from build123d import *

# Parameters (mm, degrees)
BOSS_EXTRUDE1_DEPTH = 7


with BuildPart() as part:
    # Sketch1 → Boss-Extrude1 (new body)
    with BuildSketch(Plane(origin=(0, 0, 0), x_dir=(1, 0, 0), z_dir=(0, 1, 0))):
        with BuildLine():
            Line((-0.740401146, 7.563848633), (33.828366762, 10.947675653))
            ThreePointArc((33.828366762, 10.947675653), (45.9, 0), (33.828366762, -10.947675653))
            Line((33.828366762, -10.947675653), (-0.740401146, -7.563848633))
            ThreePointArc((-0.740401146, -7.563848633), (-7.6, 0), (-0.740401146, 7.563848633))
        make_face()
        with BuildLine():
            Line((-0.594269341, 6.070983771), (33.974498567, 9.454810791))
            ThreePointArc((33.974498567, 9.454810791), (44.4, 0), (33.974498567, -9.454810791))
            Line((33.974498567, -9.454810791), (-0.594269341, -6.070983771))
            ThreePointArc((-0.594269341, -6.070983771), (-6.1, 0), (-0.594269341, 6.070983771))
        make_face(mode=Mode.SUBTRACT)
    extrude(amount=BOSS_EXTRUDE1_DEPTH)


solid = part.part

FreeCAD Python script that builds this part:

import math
import FreeCAD as App
import Part
import Sketcher
Q = App.Units.Quantity

doc = App.newDocument("Part")
body = doc.addObject("PartDesign::Body", "Body")

# Sketch on XZ plane
sketch1 = doc.addObject("Sketcher::SketchObject", "Sketch")
body.addObject(sketch1)
sketch1.AttachmentSupport = (doc.XZ_Plane, [""])
sketch1.MapMode = "FlatFace"
sketch1.addGeometry([
    Part.LineSegment(App.Vector(33.828367, -10.947676, 0), App.Vector(-0.740401, -7.563849, 0)),  # 0
    Part.ArcOfCircle(Part.Circle(App.Vector(0, 0, 0), App.Vector(0, 0, 1), 7.6), math.radians(95.590691), math.radians(264.409309)),  # 1
    Part.LineSegment(App.Vector(-0.740401, 7.563849, 0), App.Vector(33.828367, 10.947676, 0)),  # 2
    Part.ArcOfCircle(Part.Circle(App.Vector(34.9, 0, 0), App.Vector(0, 0, 1), 11), math.radians(-95.590691), math.radians(95.590691)),  # 3
    Part.LineSegment(App.Vector(-0.594269, -6.070984, 0), App.Vector(33.974499, -9.454811, 0)),  # 4
    Part.ArcOfCircle(Part.Circle(App.Vector(34.9, 0, 0), App.Vector(0, 0, 1), 9.5), math.radians(-95.590691), math.radians(95.590691)),  # 5
    Part.LineSegment(App.Vector(33.974499, 9.454811, 0), App.Vector(-0.594269, 6.070984, 0)),  # 6
    Part.ArcOfCircle(Part.Circle(App.Vector(0, 0, 0), App.Vector(0, 0, 1), 6.1), math.radians(95.590691), math.radians(264.409309)),  # 7
], False)
sketch1.addConstraint([
    Sketcher.Constraint("Tangent", 0, 2, 1, 2),
    Sketcher.Constraint("Tangent", 1, 1, 2, 1),
    Sketcher.Constraint("Tangent", 2, 2, 3, 2),
    Sketcher.Constraint("Tangent", 3, 1, 0, 1),
    Sketcher.Constraint("Tangent", 4, 2, 5, 1),
    Sketcher.Constraint("Tangent", 5, 2, 6, 1),
    Sketcher.Constraint("Tangent", 6, 2, 7, 1),
    Sketcher.Constraint("Tangent", 7, 2, 4, 1),
    Sketcher.Constraint("Coincident", 1, 3, -1, 1),
    Sketcher.Constraint("Coincident", 7, 3, -1, 1),
    Sketcher.Constraint("Coincident", 5, 3, 3, 3),
    Sketcher.Constraint("PointOnObject", 3, 3, -1),
    Sketcher.Constraint("Parallel", 0, 4),
    Sketcher.Constraint("Radius", 3, Q("11 mm")),
    Sketcher.Constraint("Radius", 1, Q("7.6 mm")),
    Sketcher.Constraint("Radius", 5, Q("9.5 mm")),
    Sketcher.Constraint("DistanceX", -1, 1, 3, 3, Q("34.9 mm")),
])
pad1 = doc.addObject("PartDesign::Pad", "Pad")
body.addObject(pad1)
pad1.Profile = sketch1
pad1.Length = 7
pad1.Reversed = True

doc.recompute()
